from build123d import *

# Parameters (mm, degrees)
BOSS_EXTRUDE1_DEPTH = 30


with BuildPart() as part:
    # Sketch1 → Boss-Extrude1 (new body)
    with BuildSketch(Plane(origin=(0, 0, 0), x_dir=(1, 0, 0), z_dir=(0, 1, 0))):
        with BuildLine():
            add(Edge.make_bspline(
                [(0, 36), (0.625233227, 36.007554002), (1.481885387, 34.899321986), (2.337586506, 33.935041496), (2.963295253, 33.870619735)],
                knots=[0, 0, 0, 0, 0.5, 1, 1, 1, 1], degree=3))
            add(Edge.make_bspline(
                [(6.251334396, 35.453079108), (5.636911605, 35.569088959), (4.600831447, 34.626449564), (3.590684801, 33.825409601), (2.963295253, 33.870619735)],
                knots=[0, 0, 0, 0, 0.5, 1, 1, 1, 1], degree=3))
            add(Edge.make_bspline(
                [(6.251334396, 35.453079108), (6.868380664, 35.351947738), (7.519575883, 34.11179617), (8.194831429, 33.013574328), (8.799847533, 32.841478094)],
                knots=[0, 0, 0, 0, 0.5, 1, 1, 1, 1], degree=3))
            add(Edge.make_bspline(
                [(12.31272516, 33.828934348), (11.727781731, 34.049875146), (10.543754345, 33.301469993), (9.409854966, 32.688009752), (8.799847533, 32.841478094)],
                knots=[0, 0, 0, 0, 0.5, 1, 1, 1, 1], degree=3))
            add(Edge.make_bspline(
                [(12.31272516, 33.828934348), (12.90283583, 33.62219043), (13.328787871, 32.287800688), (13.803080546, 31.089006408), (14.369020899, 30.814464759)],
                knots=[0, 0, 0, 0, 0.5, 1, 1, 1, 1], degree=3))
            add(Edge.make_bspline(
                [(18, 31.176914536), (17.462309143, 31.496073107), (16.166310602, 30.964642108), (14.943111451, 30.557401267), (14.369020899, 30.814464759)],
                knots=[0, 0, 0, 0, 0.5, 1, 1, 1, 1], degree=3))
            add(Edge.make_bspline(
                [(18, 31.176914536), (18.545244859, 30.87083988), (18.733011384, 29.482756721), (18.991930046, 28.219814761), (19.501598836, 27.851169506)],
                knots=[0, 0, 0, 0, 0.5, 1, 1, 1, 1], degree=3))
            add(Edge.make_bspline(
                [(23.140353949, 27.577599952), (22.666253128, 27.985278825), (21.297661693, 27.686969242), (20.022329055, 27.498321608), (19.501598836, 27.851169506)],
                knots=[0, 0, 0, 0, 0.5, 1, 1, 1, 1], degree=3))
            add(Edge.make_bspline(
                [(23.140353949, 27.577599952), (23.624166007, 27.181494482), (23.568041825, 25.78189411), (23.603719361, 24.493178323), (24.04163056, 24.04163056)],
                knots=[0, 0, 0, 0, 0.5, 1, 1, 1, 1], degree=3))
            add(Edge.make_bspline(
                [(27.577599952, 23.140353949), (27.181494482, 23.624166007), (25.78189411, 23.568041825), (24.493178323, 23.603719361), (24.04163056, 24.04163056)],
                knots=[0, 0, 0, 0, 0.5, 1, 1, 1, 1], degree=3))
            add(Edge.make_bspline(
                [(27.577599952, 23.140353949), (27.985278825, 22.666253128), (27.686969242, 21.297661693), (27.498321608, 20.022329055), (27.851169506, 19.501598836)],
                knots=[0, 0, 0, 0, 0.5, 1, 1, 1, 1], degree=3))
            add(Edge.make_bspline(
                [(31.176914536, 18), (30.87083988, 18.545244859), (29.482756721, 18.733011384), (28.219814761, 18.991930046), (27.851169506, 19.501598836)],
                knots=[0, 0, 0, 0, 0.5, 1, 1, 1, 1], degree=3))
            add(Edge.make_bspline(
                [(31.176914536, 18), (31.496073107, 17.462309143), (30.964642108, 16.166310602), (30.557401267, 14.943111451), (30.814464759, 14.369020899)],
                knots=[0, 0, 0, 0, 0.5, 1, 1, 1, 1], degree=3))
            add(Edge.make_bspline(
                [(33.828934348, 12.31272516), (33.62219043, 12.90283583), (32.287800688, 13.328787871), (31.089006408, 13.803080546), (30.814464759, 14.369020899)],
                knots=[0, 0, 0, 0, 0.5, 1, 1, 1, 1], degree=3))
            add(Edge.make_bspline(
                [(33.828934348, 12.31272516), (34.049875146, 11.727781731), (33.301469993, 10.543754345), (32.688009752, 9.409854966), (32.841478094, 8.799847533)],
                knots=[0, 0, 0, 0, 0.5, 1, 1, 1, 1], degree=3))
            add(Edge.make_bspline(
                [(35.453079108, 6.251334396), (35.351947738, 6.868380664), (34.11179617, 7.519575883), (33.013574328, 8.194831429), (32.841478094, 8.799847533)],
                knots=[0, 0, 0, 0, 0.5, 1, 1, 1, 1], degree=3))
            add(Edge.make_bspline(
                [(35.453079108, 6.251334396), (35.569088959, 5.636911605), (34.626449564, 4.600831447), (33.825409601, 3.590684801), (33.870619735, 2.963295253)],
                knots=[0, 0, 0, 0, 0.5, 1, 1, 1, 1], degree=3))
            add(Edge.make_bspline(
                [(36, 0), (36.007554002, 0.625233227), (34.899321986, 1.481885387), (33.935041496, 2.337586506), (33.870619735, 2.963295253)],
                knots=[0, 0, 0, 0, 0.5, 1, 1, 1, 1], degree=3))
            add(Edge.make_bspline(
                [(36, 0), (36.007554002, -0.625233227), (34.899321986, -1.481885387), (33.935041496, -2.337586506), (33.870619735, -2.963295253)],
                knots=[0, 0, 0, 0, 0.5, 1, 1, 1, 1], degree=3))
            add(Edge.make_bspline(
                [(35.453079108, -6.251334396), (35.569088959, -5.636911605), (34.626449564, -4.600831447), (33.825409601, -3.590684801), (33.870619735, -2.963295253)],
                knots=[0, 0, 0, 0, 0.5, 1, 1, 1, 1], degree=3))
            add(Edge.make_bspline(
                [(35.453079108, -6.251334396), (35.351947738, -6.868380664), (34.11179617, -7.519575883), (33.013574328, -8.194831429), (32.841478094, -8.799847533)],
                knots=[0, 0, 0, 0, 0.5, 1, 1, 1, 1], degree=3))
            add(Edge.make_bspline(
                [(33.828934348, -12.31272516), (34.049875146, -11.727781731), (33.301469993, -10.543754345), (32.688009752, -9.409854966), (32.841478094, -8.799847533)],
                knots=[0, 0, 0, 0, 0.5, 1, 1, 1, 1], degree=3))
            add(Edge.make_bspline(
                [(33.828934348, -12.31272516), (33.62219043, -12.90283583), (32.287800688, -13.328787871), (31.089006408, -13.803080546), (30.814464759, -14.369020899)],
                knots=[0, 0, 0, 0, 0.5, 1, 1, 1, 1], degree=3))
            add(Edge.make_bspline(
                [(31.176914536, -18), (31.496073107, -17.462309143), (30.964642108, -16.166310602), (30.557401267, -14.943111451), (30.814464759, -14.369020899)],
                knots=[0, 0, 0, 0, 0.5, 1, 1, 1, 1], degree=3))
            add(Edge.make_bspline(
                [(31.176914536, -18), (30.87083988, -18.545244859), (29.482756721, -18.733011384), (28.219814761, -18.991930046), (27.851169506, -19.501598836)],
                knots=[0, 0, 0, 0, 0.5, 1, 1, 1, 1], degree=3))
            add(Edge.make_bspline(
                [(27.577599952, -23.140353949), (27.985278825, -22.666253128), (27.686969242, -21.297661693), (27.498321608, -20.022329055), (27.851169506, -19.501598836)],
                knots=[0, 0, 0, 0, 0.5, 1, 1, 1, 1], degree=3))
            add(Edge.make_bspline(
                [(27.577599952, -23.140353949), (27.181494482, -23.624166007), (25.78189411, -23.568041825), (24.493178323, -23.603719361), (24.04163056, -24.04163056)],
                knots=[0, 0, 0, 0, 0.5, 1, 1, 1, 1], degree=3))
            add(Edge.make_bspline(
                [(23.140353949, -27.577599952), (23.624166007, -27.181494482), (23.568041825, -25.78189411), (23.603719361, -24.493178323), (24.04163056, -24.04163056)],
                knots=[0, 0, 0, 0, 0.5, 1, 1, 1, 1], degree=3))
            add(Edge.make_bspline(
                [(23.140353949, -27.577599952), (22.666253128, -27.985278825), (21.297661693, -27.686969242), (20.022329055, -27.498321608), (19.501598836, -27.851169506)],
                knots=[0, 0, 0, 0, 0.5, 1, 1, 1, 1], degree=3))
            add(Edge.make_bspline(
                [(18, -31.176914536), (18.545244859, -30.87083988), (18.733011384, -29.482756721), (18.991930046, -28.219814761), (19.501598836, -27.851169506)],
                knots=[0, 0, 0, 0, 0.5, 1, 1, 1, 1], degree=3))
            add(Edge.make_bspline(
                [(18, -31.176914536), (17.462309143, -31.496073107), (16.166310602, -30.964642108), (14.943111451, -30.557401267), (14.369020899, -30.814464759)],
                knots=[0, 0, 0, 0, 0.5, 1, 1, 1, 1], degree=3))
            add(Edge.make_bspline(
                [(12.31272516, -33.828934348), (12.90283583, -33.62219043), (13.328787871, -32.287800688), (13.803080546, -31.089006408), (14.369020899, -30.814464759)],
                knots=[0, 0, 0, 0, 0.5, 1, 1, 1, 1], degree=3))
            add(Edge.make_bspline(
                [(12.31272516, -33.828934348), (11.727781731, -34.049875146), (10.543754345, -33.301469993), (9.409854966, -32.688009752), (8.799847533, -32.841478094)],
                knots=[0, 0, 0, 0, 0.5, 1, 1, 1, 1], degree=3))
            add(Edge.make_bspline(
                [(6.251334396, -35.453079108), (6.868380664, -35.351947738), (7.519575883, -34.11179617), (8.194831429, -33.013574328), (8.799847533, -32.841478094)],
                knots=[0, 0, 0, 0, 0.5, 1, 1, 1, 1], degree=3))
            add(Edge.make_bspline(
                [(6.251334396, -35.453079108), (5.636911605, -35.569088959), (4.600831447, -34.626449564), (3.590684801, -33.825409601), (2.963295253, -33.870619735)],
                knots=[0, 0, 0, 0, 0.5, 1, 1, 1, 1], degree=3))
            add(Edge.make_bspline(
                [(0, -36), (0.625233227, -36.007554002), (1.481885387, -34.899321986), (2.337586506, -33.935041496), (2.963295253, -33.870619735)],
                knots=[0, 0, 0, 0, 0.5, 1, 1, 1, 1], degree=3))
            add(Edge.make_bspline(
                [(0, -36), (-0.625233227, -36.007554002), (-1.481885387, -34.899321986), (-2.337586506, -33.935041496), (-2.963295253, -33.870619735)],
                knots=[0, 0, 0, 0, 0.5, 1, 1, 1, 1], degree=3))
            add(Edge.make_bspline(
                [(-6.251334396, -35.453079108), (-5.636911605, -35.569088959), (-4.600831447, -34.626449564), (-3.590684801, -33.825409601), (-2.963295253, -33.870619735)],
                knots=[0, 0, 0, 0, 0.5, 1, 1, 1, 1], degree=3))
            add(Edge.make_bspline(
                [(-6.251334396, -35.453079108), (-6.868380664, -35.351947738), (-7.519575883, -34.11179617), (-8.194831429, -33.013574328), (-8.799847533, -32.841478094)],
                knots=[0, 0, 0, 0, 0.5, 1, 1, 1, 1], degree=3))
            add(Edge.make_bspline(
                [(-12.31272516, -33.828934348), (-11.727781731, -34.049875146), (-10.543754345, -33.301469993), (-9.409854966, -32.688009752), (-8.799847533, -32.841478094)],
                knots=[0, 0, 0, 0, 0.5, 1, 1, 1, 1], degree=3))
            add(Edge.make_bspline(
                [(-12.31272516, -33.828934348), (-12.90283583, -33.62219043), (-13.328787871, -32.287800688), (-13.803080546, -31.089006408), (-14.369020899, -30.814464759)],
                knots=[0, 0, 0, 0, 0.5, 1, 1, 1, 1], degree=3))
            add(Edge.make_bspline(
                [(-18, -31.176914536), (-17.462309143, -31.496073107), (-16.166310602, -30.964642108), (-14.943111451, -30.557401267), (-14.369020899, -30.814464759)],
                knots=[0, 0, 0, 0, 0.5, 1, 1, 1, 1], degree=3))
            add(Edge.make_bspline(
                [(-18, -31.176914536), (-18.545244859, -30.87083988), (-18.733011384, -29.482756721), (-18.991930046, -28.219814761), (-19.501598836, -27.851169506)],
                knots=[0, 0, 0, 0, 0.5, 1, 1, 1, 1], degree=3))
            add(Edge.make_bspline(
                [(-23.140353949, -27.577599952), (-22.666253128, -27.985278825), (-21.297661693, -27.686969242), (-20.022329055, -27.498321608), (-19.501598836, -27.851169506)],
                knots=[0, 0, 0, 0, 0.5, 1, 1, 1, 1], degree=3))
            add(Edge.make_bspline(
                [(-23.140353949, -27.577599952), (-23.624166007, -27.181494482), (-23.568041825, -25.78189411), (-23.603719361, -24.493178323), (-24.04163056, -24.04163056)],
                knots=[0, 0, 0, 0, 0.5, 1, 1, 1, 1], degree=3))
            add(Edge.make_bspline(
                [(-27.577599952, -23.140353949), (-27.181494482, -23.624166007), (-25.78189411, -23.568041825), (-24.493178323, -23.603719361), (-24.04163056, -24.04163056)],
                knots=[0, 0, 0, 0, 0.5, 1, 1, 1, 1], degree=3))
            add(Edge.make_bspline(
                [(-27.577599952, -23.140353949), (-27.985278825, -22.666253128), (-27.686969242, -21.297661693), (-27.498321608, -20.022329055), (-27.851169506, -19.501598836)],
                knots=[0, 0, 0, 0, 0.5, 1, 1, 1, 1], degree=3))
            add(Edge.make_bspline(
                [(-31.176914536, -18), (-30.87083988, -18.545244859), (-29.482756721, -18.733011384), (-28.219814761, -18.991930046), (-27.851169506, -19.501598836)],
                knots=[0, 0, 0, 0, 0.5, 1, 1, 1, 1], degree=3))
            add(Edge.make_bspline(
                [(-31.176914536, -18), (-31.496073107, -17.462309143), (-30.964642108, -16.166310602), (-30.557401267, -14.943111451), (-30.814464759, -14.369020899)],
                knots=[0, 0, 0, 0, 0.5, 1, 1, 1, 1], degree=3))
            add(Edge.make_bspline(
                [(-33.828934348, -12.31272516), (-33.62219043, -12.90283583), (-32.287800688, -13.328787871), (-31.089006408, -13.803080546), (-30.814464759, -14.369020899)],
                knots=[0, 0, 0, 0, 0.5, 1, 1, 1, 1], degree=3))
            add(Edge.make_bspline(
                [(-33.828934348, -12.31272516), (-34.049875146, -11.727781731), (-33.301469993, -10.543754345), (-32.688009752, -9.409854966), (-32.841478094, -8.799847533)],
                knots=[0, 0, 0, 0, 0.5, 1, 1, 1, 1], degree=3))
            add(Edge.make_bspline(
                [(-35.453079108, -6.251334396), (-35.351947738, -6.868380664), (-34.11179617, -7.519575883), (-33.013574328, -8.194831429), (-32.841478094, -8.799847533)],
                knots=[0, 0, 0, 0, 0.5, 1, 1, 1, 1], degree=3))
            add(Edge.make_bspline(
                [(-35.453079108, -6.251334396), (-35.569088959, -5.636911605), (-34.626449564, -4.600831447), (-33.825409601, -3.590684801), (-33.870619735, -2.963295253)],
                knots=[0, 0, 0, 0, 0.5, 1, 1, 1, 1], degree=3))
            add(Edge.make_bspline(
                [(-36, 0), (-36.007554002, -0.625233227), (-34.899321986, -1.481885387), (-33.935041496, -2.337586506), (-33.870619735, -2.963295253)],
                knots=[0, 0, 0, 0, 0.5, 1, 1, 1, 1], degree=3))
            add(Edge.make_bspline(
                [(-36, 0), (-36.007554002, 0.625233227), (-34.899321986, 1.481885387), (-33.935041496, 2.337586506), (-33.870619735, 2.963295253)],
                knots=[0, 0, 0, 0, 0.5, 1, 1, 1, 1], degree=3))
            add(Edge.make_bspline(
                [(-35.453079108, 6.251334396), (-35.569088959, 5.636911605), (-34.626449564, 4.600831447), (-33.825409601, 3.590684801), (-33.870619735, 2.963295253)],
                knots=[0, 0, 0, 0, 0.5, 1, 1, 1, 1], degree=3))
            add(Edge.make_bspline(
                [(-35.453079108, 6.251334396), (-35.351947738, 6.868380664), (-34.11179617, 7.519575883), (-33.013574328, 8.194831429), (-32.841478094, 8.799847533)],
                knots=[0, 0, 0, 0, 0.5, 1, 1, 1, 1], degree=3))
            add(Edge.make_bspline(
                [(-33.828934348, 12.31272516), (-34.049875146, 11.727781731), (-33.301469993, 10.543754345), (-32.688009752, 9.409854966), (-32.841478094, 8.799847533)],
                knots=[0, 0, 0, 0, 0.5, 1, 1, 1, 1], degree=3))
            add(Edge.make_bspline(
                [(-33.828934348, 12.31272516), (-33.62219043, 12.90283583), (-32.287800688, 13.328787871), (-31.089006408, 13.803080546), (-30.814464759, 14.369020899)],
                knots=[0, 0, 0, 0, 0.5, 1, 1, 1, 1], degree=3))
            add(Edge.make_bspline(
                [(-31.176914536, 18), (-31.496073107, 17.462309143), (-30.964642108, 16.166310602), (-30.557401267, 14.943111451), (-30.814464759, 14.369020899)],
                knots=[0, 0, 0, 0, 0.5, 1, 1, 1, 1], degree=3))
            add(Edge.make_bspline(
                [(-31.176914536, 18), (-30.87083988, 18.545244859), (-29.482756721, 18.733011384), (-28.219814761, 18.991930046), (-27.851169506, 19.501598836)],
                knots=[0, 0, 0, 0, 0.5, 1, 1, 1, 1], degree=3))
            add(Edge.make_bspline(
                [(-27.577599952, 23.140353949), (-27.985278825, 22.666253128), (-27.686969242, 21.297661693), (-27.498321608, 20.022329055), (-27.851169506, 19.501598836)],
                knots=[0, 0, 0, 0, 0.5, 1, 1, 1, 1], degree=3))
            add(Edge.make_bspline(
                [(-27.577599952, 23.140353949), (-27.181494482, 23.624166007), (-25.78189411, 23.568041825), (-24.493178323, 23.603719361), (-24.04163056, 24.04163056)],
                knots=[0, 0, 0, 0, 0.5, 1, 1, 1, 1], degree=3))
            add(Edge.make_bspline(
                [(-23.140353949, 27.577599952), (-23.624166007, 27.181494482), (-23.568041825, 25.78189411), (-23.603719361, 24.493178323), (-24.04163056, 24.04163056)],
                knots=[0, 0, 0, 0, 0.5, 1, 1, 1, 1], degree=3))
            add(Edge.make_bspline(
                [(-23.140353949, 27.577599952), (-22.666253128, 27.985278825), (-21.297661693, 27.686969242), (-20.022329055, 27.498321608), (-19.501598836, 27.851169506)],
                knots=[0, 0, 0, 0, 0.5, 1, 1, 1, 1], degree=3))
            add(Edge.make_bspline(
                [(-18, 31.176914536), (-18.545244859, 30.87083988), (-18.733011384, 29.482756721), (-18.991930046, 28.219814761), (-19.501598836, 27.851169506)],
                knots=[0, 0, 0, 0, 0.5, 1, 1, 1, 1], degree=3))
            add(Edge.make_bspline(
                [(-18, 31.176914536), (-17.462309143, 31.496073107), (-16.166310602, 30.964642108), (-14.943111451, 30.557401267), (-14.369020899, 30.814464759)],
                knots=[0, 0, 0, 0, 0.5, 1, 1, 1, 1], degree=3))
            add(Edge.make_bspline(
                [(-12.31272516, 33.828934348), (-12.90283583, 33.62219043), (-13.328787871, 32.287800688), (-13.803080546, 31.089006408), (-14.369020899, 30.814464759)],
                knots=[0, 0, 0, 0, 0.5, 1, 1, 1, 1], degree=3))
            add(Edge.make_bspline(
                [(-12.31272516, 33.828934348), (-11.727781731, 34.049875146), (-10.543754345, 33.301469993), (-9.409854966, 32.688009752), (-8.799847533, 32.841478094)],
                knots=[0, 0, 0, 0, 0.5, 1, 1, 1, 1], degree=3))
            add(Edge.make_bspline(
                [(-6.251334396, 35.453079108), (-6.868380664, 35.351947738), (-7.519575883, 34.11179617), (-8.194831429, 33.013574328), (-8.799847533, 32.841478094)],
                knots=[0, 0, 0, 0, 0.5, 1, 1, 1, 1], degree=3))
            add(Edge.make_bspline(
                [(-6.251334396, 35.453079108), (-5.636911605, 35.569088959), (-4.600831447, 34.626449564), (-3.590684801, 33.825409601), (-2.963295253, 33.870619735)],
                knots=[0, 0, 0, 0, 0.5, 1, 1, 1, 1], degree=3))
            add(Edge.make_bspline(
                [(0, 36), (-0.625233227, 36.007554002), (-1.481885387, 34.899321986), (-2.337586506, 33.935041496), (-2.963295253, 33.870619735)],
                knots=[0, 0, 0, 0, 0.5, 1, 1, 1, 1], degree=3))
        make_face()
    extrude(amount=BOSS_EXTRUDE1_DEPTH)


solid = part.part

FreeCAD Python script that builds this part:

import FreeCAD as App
import Part
import Sketcher
from FreeCAD import Vector

doc = App.newDocument("Part")
body = doc.addObject("PartDesign::Body", "Body")

sketch1 = body.newObject("Sketcher::SketchObject", "Sketch")
sketch1.AttachmentSupport = (doc.getObject("XZ_Plane"), [""])
sketch1.MapMode = "FlatFace"
sketch1.addGeometry([
    Part.BSplineCurve([Vector(0, -36, 0), Vector(0.625233, -36.007554, 0), Vector(1.481885, -34.899322, 0), Vector(2.337587, -33.935041, 0), Vector(2.963295, -33.87062, 0)], [4, 1, 4], [0, 0.5, 1], False, 3, [1, 1, 1, 1, 1], False),
    Part.BSplineCurve([Vector(0, -36, 0), Vector(-0.625233, -36.007554, 0), Vector(-1.481885, -34.899322, 0), Vector(-2.337587, -33.935041, 0), Vector(-2.963295, -33.87062, 0)], [4, 1, 4], [0, 0.5, 1], False, 3, [1, 1, 1, 1, 1], False),
    Part.BSplineCurve([Vector(-6.251334, -35.453079, 0), Vector(-5.636912, -35.569089, 0), Vector(-4.600831, -34.62645, 0), Vector(-3.590685, -33.82541, 0), Vector(-2.963295, -33.87062, 0)], [4, 1, 4], [0, 0.5, 1], False, 3, [1, 1, 1, 1, 1], False),
    Part.BSplineCurve([Vector(-6.251334, -35.453079, 0), Vector(-6.868381, -35.351948, 0), Vector(-7.519576, -34.111796, 0), Vector(-8.194831, -33.013574, 0), Vector(-8.799848, -32.841478, 0)], [4, 1, 4], [0, 0.5, 1], False, 3, [1, 1, 1, 1, 1], False),
    Part.BSplineCurve([Vector(-12.312725, -33.828934, 0), Vector(-11.727782, -34.049875, 0), Vector(-10.543754, -33.30147, 0), Vector(-9.409855, -32.68801, 0), Vector(-8.799848, -32.841478, 0)], [4, 1, 4], [0, 0.5, 1], False, 3, [1, 1, 1, 1, 1], False),
    Part.BSplineCurve([Vector(-12.312725, -33.828934, 0), Vector(-12.902836, -33.62219, 0), Vector(-13.328788, -32.287801, 0), Vector(-13.803081, -31.089006, 0), Vector(-14.369021, -30.814465, 0)], [4, 1, 4], [0, 0.5, 1], False, 3, [1, 1, 1, 1, 1], False),
    Part.BSplineCurve([Vector(-18, -31.176915, 0), Vector(-17.462309, -31.496073, 0), Vector(-16.166311, -30.964642, 0), Vector(-14.943111, -30.557401, 0), Vector(-14.369021, -30.814465, 0)], [4, 1, 4], [0, 0.5, 1], False, 3, [1, 1, 1, 1, 1], False),
    Part.BSplineCurve([Vector(-18, -31.176915, 0), Vector(-18.545245, -30.87084, 0), Vector(-18.733011, -29.482757, 0), Vector(-18.99193, -28.219815, 0), Vector(-19.501599, -27.85117, 0)], [4, 1, 4], [0, 0.5, 1], False, 3, [1, 1, 1, 1, 1], False),
    Part.BSplineCurve([Vector(-23.140354, -27.5776, 0), Vector(-22.666253, -27.985279, 0), Vector(-21.297662, -27.686969, 0), Vector(-20.022329, -27.498322, 0), Vector(-19.501599, -27.85117, 0)], [4, 1, 4], [0, 0.5, 1], False, 3, [1, 1, 1, 1, 1], False),
    Part.BSplineCurve([Vector(-23.140354, -27.5776, 0), Vector(-23.624166, -27.181494, 0), Vector(-23.568042, -25.781894, 0), Vector(-23.603719, -24.493178, 0), Vector(-24.041631, -24.041631, 0)], [4, 1, 4], [0, 0.5, 1], False, 3, [1, 1, 1, 1, 1], False),
    Part.BSplineCurve([Vector(-27.5776, -23.140354, 0), Vector(-27.181494, -23.624166, 0), Vector(-25.781894, -23.568042, 0), Vector(-24.493178, -23.603719, 0), Vector(-24.041631, -24.041631, 0)], [4, 1, 4], [0, 0.5, 1], False, 3, [1, 1, 1, 1, 1], False),
    Part.BSplineCurve([Vector(-27.5776, -23.140354, 0), Vector(-27.985279, -22.666253, 0), Vector(-27.686969, -21.297662, 0), Vector(-27.498322, -20.022329, 0), Vector(-27.85117, -19.501599, 0)], [4, 1, 4], [0, 0.5, 1], False, 3, [1, 1, 1, 1, 1], False),
    Part.BSplineCurve([Vector(-31.176915, -18, 0), Vector(-30.87084, -18.545245, 0), Vector(-29.482757, -18.733011, 0), Vector(-28.219815, -18.99193, 0), Vector(-27.85117, -19.501599, 0)], [4, 1, 4], [0, 0.5, 1], False, 3, [1, 1, 1, 1, 1], False),
    Part.BSplineCurve([Vector(-31.176915, -18, 0), Vector(-31.496073, -17.462309, 0), Vector(-30.964642, -16.166311, 0), Vector(-30.557401, -14.943111, 0), Vector(-30.814465, -14.369021, 0)], [4, 1, 4], [0, 0.5, 1], False, 3, [1, 1, 1, 1, 1], False),
    Part.BSplineCurve([Vector(-33.828934, -12.312725, 0), Vector(-33.62219, -12.902836, 0), Vector(-32.287801, -13.328788, 0), Vector(-31.089006, -13.803081, 0), Vector(-30.814465, -14.369021, 0)], [4, 1, 4], [0, 0.5, 1], False, 3, [1, 1, 1, 1, 1], False),
    Part.BSplineCurve([Vector(-33.828934, -12.312725, 0), Vector(-34.049875, -11.727782, 0), Vector(-33.30147, -10.543754, 0), Vector(-32.68801, -9.409855, 0), Vector(-32.841478, -8.799848, 0)], [4, 1, 4], [0, 0.5, 1], False, 3, [1, 1, 1, 1, 1], False),
    Part.BSplineCurve([Vector(-35.453079, -6.251334, 0), Vector(-35.351948, -6.868381, 0), Vector(-34.111796, -7.519576, 0), Vector(-33.013574, -8.194831, 0), Vector(-32.841478, -8.799848, 0)], [4, 1, 4], [0, 0.5, 1], False, 3, [1, 1, 1, 1, 1], False),
    Part.BSplineCurve([Vector(-35.453079, -6.251334, 0), Vector(-35.569089, -5.636912, 0), Vector(-34.62645, -4.600831, 0), Vector(-33.82541, -3.590685, 0), Vector(-33.87062, -2.963295, 0)], [4, 1, 4], [0, 0.5, 1], False, 3, [1, 1, 1, 1, 1], False),
    Part.BSplineCurve([Vector(-36, 0, 0), Vector(-36.007554, -0.625233, 0), Vector(-34.899322, -1.481885, 0), Vector(-33.935041, -2.337587, 0), Vector(-33.87062, -2.963295, 0)], [4, 1, 4], [0, 0.5, 1], False, 3, [1, 1, 1, 1, 1], False),
    Part.BSplineCurve([Vector(-36, 0, 0), Vector(-36.007554, 0.625233, 0), Vector(-34.899322, 1.481885, 0), Vector(-33.935041, 2.337587, 0), Vector(-33.87062, 2.963295, 0)], [4, 1, 4], [0, 0.5, 1], False, 3, [1, 1, 1, 1, 1], False),
    Part.BSplineCurve([Vector(-35.453079, 6.251334, 0), Vector(-35.569089, 5.636912, 0), Vector(-34.62645, 4.600831, 0), Vector(-33.82541, 3.590685, 0), Vector(-33.87062, 2.963295, 0)], [4, 1, 4], [0, 0.5, 1], False, 3, [1, 1, 1, 1, 1], False),
    Part.BSplineCurve([Vector(-35.453079, 6.251334, 0), Vector(-35.351948, 6.868381, 0), Vector(-34.111796, 7.519576, 0), Vector(-33.013574, 8.194831, 0), Vector(-32.841478, 8.799848, 0)], [4, 1, 4], [0, 0.5, 1], False, 3, [1, 1, 1, 1, 1], False),
    Part.BSplineCurve([Vector(-33.828934, 12.312725, 0), Vector(-34.049875, 11.727782, 0), Vector(-33.30147, 10.543754, 0), Vector(-32.68801, 9.409855, 0), Vector(-32.841478, 8.799848, 0)], [4, 1, 4], [0, 0.5, 1], False, 3, [1, 1, 1, 1, 1], False),
    Part.BSplineCurve([Vector(-33.828934, 12.312725, 0), Vector(-33.62219, 12.902836, 0), Vector(-32.287801, 13.328788, 0), Vector(-31.089006, 13.803081, 0), Vector(-30.814465, 14.369021, 0)], [4, 1, 4], [0, 0.5, 1], False, 3, [1, 1, 1, 1, 1], False),
    Part.BSplineCurve([Vector(-31.176915, 18, 0), Vector(-31.496073, 17.462309, 0), Vector(-30.964642, 16.166311, 0), Vector(-30.557401, 14.943111, 0), Vector(-30.814465, 14.369021, 0)], [4, 1, 4], [0, 0.5, 1], False, 3, [1, 1, 1, 1, 1], False),
    Part.BSplineCurve([Vector(-31.176915, 18, 0), Vector(-30.87084, 18.545245, 0), Vector(-29.482757, 18.733011, 0), Vector(-28.219815, 18.99193, 0), Vector(-27.85117, 19.501599, 0)], [4, 1, 4], [0, 0.5, 1], False, 3, [1, 1, 1, 1, 1], False),
    Part.BSplineCurve([Vector(-27.5776, 23.140354, 0), Vector(-27.985279, 22.666253, 0), Vector(-27.686969, 21.297662, 0), Vector(-27.498322, 20.022329, 0), Vector(-27.85117, 19.501599, 0)], [4, 1, 4], [0, 0.5, 1], False, 3, [1, 1, 1, 1, 1], False),
    Part.BSplineCurve([Vector(-27.5776, 23.140354, 0), Vector(-27.181494, 23.624166, 0), Vector(-25.781894, 23.568042, 0), Vector(-24.493178, 23.603719, 0), Vector(-24.041631, 24.041631, 0)], [4, 1, 4], [0, 0.5, 1], False, 3, [1, 1, 1, 1, 1], False),
    Part.BSplineCurve([Vector(-23.140354, 27.5776, 0), Vector(-23.624166, 27.181494, 0), Vector(-23.568042, 25.781894, 0), Vector(-23.603719, 24.493178, 0), Vector(-24.041631, 24.041631, 0)], [4, 1, 4], [0, 0.5, 1], False, 3, [1, 1, 1, 1, 1], False),
    Part.BSplineCurve([Vector(-23.140354, 27.5776, 0), Vector(-22.666253, 27.985279, 0), Vector(-21.297662, 27.686969, 0), Vector(-20.022329, 27.498322, 0), Vector(-19.501599, 27.85117, 0)], [4, 1, 4], [0, 0.5, 1], False, 3, [1, 1, 1, 1, 1], False),
    Part.BSplineCurve([Vector(-18, 31.176915, 0), Vector(-18.545245, 30.87084, 0), Vector(-18.733011, 29.482757, 0), Vector(-18.99193, 28.219815, 0), Vector(-19.501599, 27.85117, 0)], [4, 1, 4], [0, 0.5, 1], False, 3, [1, 1, 1, 1, 1], False),
    Part.BSplineCurve([Vector(-18, 31.176915, 0), Vector(-17.462309, 31.496073, 0), Vector(-16.166311, 30.964642, 0), Vector(-14.943111, 30.557401, 0), Vector(-14.369021, 30.814465, 0)], [4, 1, 4], [0, 0.5, 1], False, 3, [1, 1, 1, 1, 1], False),
    Part.BSplineCurve([Vector(-12.312725, 33.828934, 0), Vector(-12.902836, 33.62219, 0), Vector(-13.328788, 32.287801, 0), Vector(-13.803081, 31.089006, 0), Vector(-14.369021, 30.814465, 0)], [4, 1, 4], [0, 0.5, 1], False, 3, [1, 1, 1, 1, 1], False),
    Part.BSplineCurve([Vector(-12.312725, 33.828934, 0), Vector(-11.727782, 34.049875, 0), Vector(-10.543754, 33.30147, 0), Vector(-9.409855, 32.68801, 0), Vector(-8.799848, 32.841478, 0)], [4, 1, 4], [0, 0.5, 1], False, 3, [1, 1, 1, 1, 1], False),
    Part.BSplineCurve([Vector(-6.251334, 35.453079, 0), Vector(-6.868381, 35.351948, 0), Vector(-7.519576, 34.111796, 0), Vector(-8.194831, 33.013574, 0), Vector(-8.799848, 32.841478, 0)], [4, 1, 4], [0, 0.5, 1], False, 3, [1, 1, 1, 1, 1], False),
    Part.BSplineCurve([Vector(-6.251334, 35.453079, 0), Vector(-5.636912, 35.569089, 0), Vector(-4.600831, 34.62645, 0), Vector(-3.590685, 33.82541, 0), Vector(-2.963295, 33.87062, 0)], [4, 1, 4], [0, 0.5, 1], False, 3, [1, 1, 1, 1, 1], False),
    Part.BSplineCurve([Vector(0, 36, 0), Vector(-0.625233, 36.007554, 0), Vector(-1.481885, 34.899322, 0), Vector(-2.337587, 33.935041, 0), Vector(-2.963295, 33.87062, 0)], [4, 1, 4], [0, 0.5, 1], False, 3, [1, 1, 1, 1, 1], False),
    Part.BSplineCurve([Vector(0, 36, 0), Vector(0.625233, 36.007554, 0), Vector(1.481885, 34.899322, 0), Vector(2.337587, 33.935041, 0), Vector(2.963295, 33.87062, 0)], [4, 1, 4], [0, 0.5, 1], False, 3, [1, 1, 1, 1, 1], False),
    Part.BSplineCurve([Vector(6.251334, 35.453079, 0), Vector(5.636912, 35.569089, 0), Vector(4.600831, 34.62645, 0), Vector(3.590685, 33.82541, 0), Vector(2.963295, 33.87062, 0)], [4, 1, 4], [0, 0.5, 1], False, 3, [1, 1, 1, 1, 1], False),
    Part.BSplineCurve([Vector(6.251334, 35.453079, 0), Vector(6.868381, 35.351948, 0), Vector(7.519576, 34.111796, 0), Vector(8.194831, 33.013574, 0), Vector(8.799848, 32.841478, 0)], [4, 1, 4], [0, 0.5, 1], False, 3, [1, 1, 1, 1, 1], False),
    Part.BSplineCurve([Vector(12.312725, 33.828934, 0), Vector(11.727782, 34.049875, 0), Vector(10.543754, 33.30147, 0), Vector(9.409855, 32.68801, 0), Vector(8.799848, 32.841478, 0)], [4, 1, 4], [0, 0.5, 1], False, 3, [1, 1, 1, 1, 1], False),
    Part.BSplineCurve([Vector(12.312725, 33.828934, 0), Vector(12.902836, 33.62219, 0), Vector(13.328788, 32.287801, 0), Vector(13.803081, 31.089006, 0), Vector(14.369021, 30.814465, 0)], [4, 1, 4], [0, 0.5, 1], False, 3, [1, 1, 1, 1, 1], False),
    Part.BSplineCurve([Vector(18, 31.176915, 0), Vector(17.462309, 31.496073, 0), Vector(16.166311, 30.964642, 0), Vector(14.943111, 30.557401, 0), Vector(14.369021, 30.814465, 0)], [4, 1, 4], [0, 0.5, 1], False, 3, [1, 1, 1, 1, 1], False),
    Part.BSplineCurve([Vector(18, 31.176915, 0), Vector(18.545245, 30.87084, 0), Vector(18.733011, 29.482757, 0), Vector(18.99193, 28.219815, 0), Vector(19.501599, 27.85117, 0)], [4, 1, 4], [0, 0.5, 1], False, 3, [1, 1, 1, 1, 1], False),
    Part.BSplineCurve([Vector(23.140354, 27.5776, 0), Vector(22.666253, 27.985279, 0), Vector(21.297662, 27.686969, 0), Vector(20.022329, 27.498322, 0), Vector(19.501599, 27.85117, 0)], [4, 1, 4], [0, 0.5, 1], False, 3, [1, 1, 1, 1, 1], False),
    Part.BSplineCurve([Vector(23.140354, 27.5776, 0), Vector(23.624166, 27.181494, 0), Vector(23.568042, 25.781894, 0), Vector(23.603719, 24.493178, 0), Vector(24.041631, 24.041631, 0)], [4, 1, 4], [0, 0.5, 1], False, 3, [1, 1, 1, 1, 1], False),
    Part.BSplineCurve([Vector(27.5776, 23.140354, 0), Vector(27.181494, 23.624166, 0), Vector(25.781894, 23.568042, 0), Vector(24.493178, 23.603719, 0), Vector(24.041631, 24.041631, 0)], [4, 1, 4], [0, 0.5, 1], False, 3, [1, 1, 1, 1, 1], False),
    Part.BSplineCurve([Vector(27.5776, 23.140354, 0), Vector(27.985279, 22.666253, 0), Vector(27.686969, 21.297662, 0), Vector(27.498322, 20.022329, 0), Vector(27.85117, 19.501599, 0)], [4, 1, 4], [0, 0.5, 1], False, 3, [1, 1, 1, 1, 1], False),
    Part.BSplineCurve([Vector(31.176915, 18, 0), Vector(30.87084, 18.545245, 0), Vector(29.482757, 18.733011, 0), Vector(28.219815, 18.99193, 0), Vector(27.85117, 19.501599, 0)], [4, 1, 4], [0, 0.5, 1], False, 3, [1, 1, 1, 1, 1], False),
    Part.BSplineCurve([Vector(31.176915, 18, 0), Vector(31.496073, 17.462309, 0), Vector(30.964642, 16.166311, 0), Vector(30.557401, 14.943111, 0), Vector(30.814465, 14.369021, 0)], [4, 1, 4], [0, 0.5, 1], False, 3, [1, 1, 1, 1, 1], False),
    Part.BSplineCurve([Vector(33.828934, 12.312725, 0), Vector(33.62219, 12.902836, 0), Vector(32.287801, 13.328788, 0), Vector(31.089006, 13.803081, 0), Vector(30.814465, 14.369021, 0)], [4, 1, 4], [0, 0.5, 1], False, 3, [1, 1, 1, 1, 1], False),
    Part.BSplineCurve([Vector(33.828934, 12.312725, 0), Vector(34.049875, 11.727782, 0), Vector(33.30147, 10.543754, 0), Vector(32.68801, 9.409855, 0), Vector(32.841478, 8.799848, 0)], [4, 1, 4], [0, 0.5, 1], False, 3, [1, 1, 1, 1, 1], False),
    Part.BSplineCurve([Vector(35.453079, 6.251334, 0), Vector(35.351948, 6.868381, 0), Vector(34.111796, 7.519576, 0), Vector(33.013574, 8.194831, 0), Vector(32.841478, 8.799848, 0)], [4, 1, 4], [0, 0.5, 1], False, 3, [1, 1, 1, 1, 1], False),
    Part.BSplineCurve([Vector(35.453079, 6.251334, 0), Vector(35.569089, 5.636912, 0), Vector(34.62645, 4.600831, 0), Vector(33.82541, 3.590685, 0), Vector(33.87062, 2.963295, 0)], [4, 1, 4], [0, 0.5, 1], False, 3, [1, 1, 1, 1, 1], False),
    Part.BSplineCurve([Vector(36, 0, 0), Vector(36.007554, 0.625233, 0), Vector(34.899322, 1.481885, 0), Vector(33.935041, 2.337587, 0), Vector(33.87062, 2.963295, 0)], [4, 1, 4], [0, 0.5, 1], False, 3, [1, 1, 1, 1, 1], False),
    Part.BSplineCurve([Vector(36, 0, 0), Vector(36.007554, -0.625233, 0), Vector(34.899322, -1.481885, 0), Vector(33.935041, -2.337587, 0), Vector(33.87062, -2.963295, 0)], [4, 1, 4], [0, 0.5, 1], False, 3, [1, 1, 1, 1, 1], False),
    Part.BSplineCurve([Vector(35.453079, -6.251334, 0), Vector(35.569089, -5.636912, 0), Vector(34.62645, -4.600831, 0), Vector(33.82541, -3.590685, 0), Vector(33.87062, -2.963295, 0)], [4, 1, 4], [0, 0.5, 1], False, 3, [1, 1, 1, 1, 1], False),
    Part.BSplineCurve([Vector(35.453079, -6.251334, 0), Vector(35.351948, -6.868381, 0), Vector(34.111796, -7.519576, 0), Vector(33.013574, -8.194831, 0), Vector(32.841478, -8.799848, 0)], [4, 1, 4], [0, 0.5, 1], False, 3, [1, 1, 1, 1, 1], False),
    Part.BSplineCurve([Vector(33.828934, -12.312725, 0), Vector(34.049875, -11.727782, 0), Vector(33.30147, -10.543754, 0), Vector(32.68801, -9.409855, 0), Vector(32.841478, -8.799848, 0)], [4, 1, 4], [0, 0.5, 1], False, 3, [1, 1, 1, 1, 1], False),
    Part.BSplineCurve([Vector(33.828934, -12.312725, 0), Vector(33.62219, -12.902836, 0), Vector(32.287801, -13.328788, 0), Vector(31.089006, -13.803081, 0), Vector(30.814465, -14.369021, 0)], [4, 1, 4], [0, 0.5, 1], False, 3, [1, 1, 1, 1, 1], False),
    Part.BSplineCurve([Vector(31.176915, -18, 0), Vector(31.496073, -17.462309, 0), Vector(30.964642, -16.166311, 0), Vector(30.557401, -14.943111, 0), Vector(30.814465, -14.369021, 0)], [4, 1, 4], [0, 0.5, 1], False, 3, [1, 1, 1, 1, 1], False),
    Part.BSplineCurve([Vector(31.176915, -18, 0), Vector(30.87084, -18.545245, 0), Vector(29.482757, -18.733011, 0), Vector(28.219815, -18.99193, 0), Vector(27.85117, -19.501599, 0)], [4, 1, 4], [0, 0.5, 1], False, 3, [1, 1, 1, 1, 1], False),
    Part.BSplineCurve([Vector(27.5776, -23.140354, 0), Vector(27.985279, -22.666253, 0), Vector(27.686969, -21.297662, 0), Vector(27.498322, -20.022329, 0), Vector(27.85117, -19.501599, 0)], [4, 1, 4], [0, 0.5, 1], False, 3, [1, 1, 1, 1, 1], False),
    Part.BSplineCurve([Vector(27.5776, -23.140354, 0), Vector(27.181494, -23.624166, 0), Vector(25.781894, -23.568042, 0), Vector(24.493178, -23.603719, 0), Vector(24.041631, -24.041631, 0)], [4, 1, 4], [0, 0.5, 1], False, 3, [1, 1, 1, 1, 1], False),
    Part.BSplineCurve([Vector(23.140354, -27.5776, 0), Vector(23.624166, -27.181494, 0), Vector(23.568042, -25.781894, 0), Vector(23.603719, -24.493178, 0), Vector(24.041631, -24.041631, 0)], [4, 1, 4], [0, 0.5, 1], False, 3, [1, 1, 1, 1, 1], False),
    Part.BSplineCurve([Vector(23.140354, -27.5776, 0), Vector(22.666253, -27.985279, 0), Vector(21.297662, -27.686969, 0), Vector(20.022329, -27.498322, 0), Vector(19.501599, -27.85117, 0)], [4, 1, 4], [0, 0.5, 1], False, 3, [1, 1, 1, 1, 1], False),
    Part.BSplineCurve([Vector(18, -31.176915, 0), Vector(18.545245, -30.87084, 0), Vector(18.733011, -29.482757, 0), Vector(18.99193, -28.219815, 0), Vector(19.501599, -27.85117, 0)], [4, 1, 4], [0, 0.5, 1], False, 3, [1, 1, 1, 1, 1], False),
    Part.BSplineCurve([Vector(18, -31.176915, 0), Vector(17.462309, -31.496073, 0), Vector(16.166311, -30.964642, 0), Vector(14.943111, -30.557401, 0), Vector(14.369021, -30.814465, 0)], [4, 1, 4], [0, 0.5, 1], False, 3, [1, 1, 1, 1, 1], False),
    Part.BSplineCurve([Vector(12.312725, -33.828934, 0), Vector(12.902836, -33.62219, 0), Vector(13.328788, -32.287801, 0), Vector(13.803081, -31.089006, 0), Vector(14.369021, -30.814465, 0)], [4, 1, 4], [0, 0.5, 1], False, 3, [1, 1, 1, 1, 1], False),
    Part.BSplineCurve([Vector(12.312725, -33.828934, 0), Vector(11.727782, -34.049875, 0), Vector(10.543754, -33.30147, 0), Vector(9.409855, -32.68801, 0), Vector(8.799848, -32.841478, 0)], [4, 1, 4], [0, 0.5, 1], False, 3, [1, 1, 1, 1, 1], False),
    Part.BSplineCurve([Vector(6.251334, -35.453079, 0), Vector(6.868381, -35.351948, 0), Vector(7.519576, -34.111796, 0), Vector(8.194831, -33.013574, 0), Vector(8.799848, -32.841478, 0)], [4, 1, 4], [0, 0.5, 1], False, 3, [1, 1, 1, 1, 1], False),
    Part.BSplineCurve([Vector(6.251334, -35.453079, 0), Vector(5.636912, -35.569089, 0), Vector(4.600831, -34.62645, 0), Vector(3.590685, -33.82541, 0), Vector(2.963295, -33.87062, 0)], [4, 1, 4], [0, 0.5, 1], False, 3, [1, 1, 1, 1, 1], False),
], False)
sketch1.addConstraint([
    Sketcher.Constraint("Block", 0),
    Sketcher.Constraint("Block", 1),
    Sketcher.Constraint("Block", 2),
    Sketcher.Constraint("Block", 3),
    Sketcher.Constraint("Block", 4),
    Sketcher.Constraint("Block", 5),
    Sketcher.Constraint("Block", 6),
    Sketcher.Constraint("Block", 7),
    Sketcher.Constraint("Block", 8),
    Sketcher.Constraint("Block", 9),
    Sketcher.Constraint("Block", 10),
    Sketcher.Constraint("Block", 11),
    Sketcher.Constraint("Block", 12),
    Sketcher.Constraint("Block", 13),
    Sketcher.Constraint("Block", 14),
    Sketcher.Constraint("Block", 15),
    Sketcher.Constraint("Block", 16),
    Sketcher.Constraint("Block", 17),
    Sketcher.Constraint("Block", 18),
    Sketcher.Constraint("Block", 19),
    Sketcher.Constraint("Block", 20),
    Sketcher.Constraint("Block", 21),
    Sketcher.Constraint("Block", 22),
    Sketcher.Constraint("Block", 23),
    Sketcher.Constraint("Block", 24),
    Sketcher.Constraint("Block", 25),
    Sketcher.Constraint("Block", 26),
    Sketcher.Constraint("Block", 27),
    Sketcher.Constraint("Block", 28),
    Sketcher.Constraint("Block", 29),
    Sketcher.Constraint("Block", 30),
    Sketcher.Constraint("Block", 31),
    Sketcher.Constraint("Block", 32),
    Sketcher.Constraint("Block", 33),
    Sketcher.Constraint("Block", 34),
    Sketcher.Constraint("Block", 35),
    Sketcher.Constraint("Block", 36),
    Sketcher.Constraint("Block", 37),
    Sketcher.Constraint("Block", 38),
    Sketcher.Constraint("Block", 39),
    Sketcher.Constraint("Block", 40),
    Sketcher.Constraint("Block", 41),
    Sketcher.Constraint("Block", 42),
    Sketcher.Constraint("Block", 43),
    Sketcher.Constraint("Block", 44),
    Sketcher.Constraint("Block", 45),
    Sketcher.Constraint("Block", 46),
    Sketcher.Constraint("Block", 47),
    Sketcher.Constraint("Block", 48),
    Sketcher.Constraint("Block", 49),
    Sketcher.Constraint("Block", 50),
    Sketcher.Constraint("Block", 51),
    Sketcher.Constraint("Block", 52),
    Sketcher.Constraint("Block", 53),
    Sketcher.Constraint("Block", 54),
    Sketcher.Constraint("Block", 55),
    Sketcher.Constraint("Block", 56),
    Sketcher.Constraint("Block", 57),
    Sketcher.Constraint("Block", 58),
    Sketcher.Constraint("Block", 59),
    Sketcher.Constraint("Block", 60),
    Sketcher.Constraint("Block", 61),
    Sketcher.Constraint("Block", 62),
    Sketcher.Constraint("Block", 63),
    Sketcher.Constraint("Block", 64),
    Sketcher.Constraint("Block", 65),
    Sketcher.Constraint("Block", 66),
    Sketcher.Constraint("Block", 67),
    Sketcher.Constraint("Block", 68),
    Sketcher.Constraint("Block", 69),
    Sketcher.Constraint("Block", 70),
    Sketcher.Constraint("Block", 71),
])
pad1 = body.newObject("PartDesign::Pad", "Pad")
pad1.Profile = sketch1
pad1.Length = 30
pad1.Reversed = True

doc.recompute()
